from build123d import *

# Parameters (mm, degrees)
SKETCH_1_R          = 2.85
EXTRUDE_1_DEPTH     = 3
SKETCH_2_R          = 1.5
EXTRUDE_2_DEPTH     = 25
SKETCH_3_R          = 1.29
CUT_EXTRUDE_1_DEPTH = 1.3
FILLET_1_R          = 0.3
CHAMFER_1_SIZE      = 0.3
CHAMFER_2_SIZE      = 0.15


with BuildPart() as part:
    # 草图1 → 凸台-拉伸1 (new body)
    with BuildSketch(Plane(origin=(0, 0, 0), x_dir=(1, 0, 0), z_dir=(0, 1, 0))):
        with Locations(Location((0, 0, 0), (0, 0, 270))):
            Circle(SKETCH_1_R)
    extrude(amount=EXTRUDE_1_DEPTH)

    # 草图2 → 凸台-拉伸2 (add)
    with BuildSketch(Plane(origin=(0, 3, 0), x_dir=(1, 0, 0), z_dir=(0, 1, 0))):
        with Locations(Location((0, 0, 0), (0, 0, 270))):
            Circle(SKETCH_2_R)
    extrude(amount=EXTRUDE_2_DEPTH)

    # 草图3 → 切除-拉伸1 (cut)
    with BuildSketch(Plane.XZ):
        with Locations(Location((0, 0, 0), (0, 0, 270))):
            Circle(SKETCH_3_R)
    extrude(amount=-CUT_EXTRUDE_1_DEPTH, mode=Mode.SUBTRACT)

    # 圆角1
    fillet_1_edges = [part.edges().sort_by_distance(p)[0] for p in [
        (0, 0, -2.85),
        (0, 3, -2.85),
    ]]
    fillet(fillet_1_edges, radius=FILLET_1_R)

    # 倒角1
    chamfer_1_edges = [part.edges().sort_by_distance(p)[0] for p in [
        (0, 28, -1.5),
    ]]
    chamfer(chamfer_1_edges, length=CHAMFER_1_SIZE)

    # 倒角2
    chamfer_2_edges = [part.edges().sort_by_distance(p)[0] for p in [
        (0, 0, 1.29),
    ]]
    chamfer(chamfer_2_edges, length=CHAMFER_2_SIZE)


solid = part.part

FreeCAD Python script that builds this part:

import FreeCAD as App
import Part
import Sketcher
Q = App.Units.Quantity


def edges_at(feature, points):
    """Names of the edges that pass closest to the given points."""
    edges = feature.Shape.Edges
    near = lambda p: min(range(len(edges)), key=lambda i: edges[i].distToShape(Part.Vertex(*p))[0])
    return sorted({f"Edge{near(p) + 1}" for p in points})

doc = App.newDocument("Part")
body = doc.addObject("PartDesign::Body", "Body")

# Sketch on XZ plane
sketch1 = body.newObject("Sketcher::SketchObject", "Sketch")
sketch1.AttachmentSupport = (doc.getObject("XZ_Plane"), [""])
sketch1.MapMode = "FlatFace"
sketch1.addGeometry(Part.Circle(App.Vector(0, 0, 0), App.Vector(0, 0, 1), 2.85), False)
sketch1.addConstraint(Sketcher.Constraint("Coincident", 0, 3, -1, 1))
sketch1.addConstraint(Sketcher.Constraint("Diameter", 0, Q("5.7 mm")))
pad1 = body.newObject("PartDesign::Pad", "Pad")
pad1.Profile = sketch1
pad1.Length = 3
pad1.Reversed = True

# Sketch on XZ plane
sketch2 = body.newObject("Sketcher::SketchObject", "Sketch001")
sketch2.AttachmentSupport = (doc.getObject("XZ_Plane"), [""])
sketch2.MapMode = "FlatFace"
sketch2.AttachmentOffset = App.Placement(App.Vector(0, 0, -3), App.Rotation())
sketch2.addGeometry(Part.Circle(App.Vector(0, 0, 0), App.Vector(0, 0, 1), 1.5), False)
sketch2.addConstraint(Sketcher.Constraint("Coincident", 0, 3, -1, 1))
sketch2.addConstraint(Sketcher.Constraint("Diameter", 0, Q("3 mm")))
pad2 = body.newObject("PartDesign::Pad", "Pad001")
pad2.Profile = sketch2
pad2.Length = 25
pad2.Reversed = True

# Sketch on XZ plane
sketch3 = body.newObject("Sketcher::SketchObject", "Sketch002")
sketch3.AttachmentSupport = (doc.getObject("XZ_Plane"), [""])
sketch3.MapMode = "FlatFace"
sketch3.addGeometry(Part.Circle(App.Vector(0, 0, 0), App.Vector(0, 0, 1), 1.29), False)
sketch3.addConstraint(Sketcher.Constraint("Coincident", 0, 3, -1, 1))
sketch3.addConstraint(Sketcher.Constraint("Diameter", 0, Q("2.58 mm")))
pocket1 = body.newObject("PartDesign::Pocket", "Pocket")
pocket1.Profile = sketch3
pocket1.Length = 1.3
doc.recompute()

fillet = body.newObject("PartDesign::Fillet", "Fillet")
fillet.Base = (pocket1, edges_at(pocket1, [(0, 0, -2.85), (0, 3, -2.85)]))
fillet.Radius = 0.3
doc.recompute()

chamfer = body.newObject("PartDesign::Chamfer", "Chamfer")
chamfer.Base = (fillet, edges_at(fillet, [(0, 28, -1.5)]))
chamfer.Size = 0.3
doc.recompute()

chamfer2 = body.newObject("PartDesign::Chamfer", "Chamfer001")
chamfer2.Base = (chamfer, edges_at(chamfer, [(0, 0, 1.29)]))
chamfer2.Size = 0.15

doc.recompute()
